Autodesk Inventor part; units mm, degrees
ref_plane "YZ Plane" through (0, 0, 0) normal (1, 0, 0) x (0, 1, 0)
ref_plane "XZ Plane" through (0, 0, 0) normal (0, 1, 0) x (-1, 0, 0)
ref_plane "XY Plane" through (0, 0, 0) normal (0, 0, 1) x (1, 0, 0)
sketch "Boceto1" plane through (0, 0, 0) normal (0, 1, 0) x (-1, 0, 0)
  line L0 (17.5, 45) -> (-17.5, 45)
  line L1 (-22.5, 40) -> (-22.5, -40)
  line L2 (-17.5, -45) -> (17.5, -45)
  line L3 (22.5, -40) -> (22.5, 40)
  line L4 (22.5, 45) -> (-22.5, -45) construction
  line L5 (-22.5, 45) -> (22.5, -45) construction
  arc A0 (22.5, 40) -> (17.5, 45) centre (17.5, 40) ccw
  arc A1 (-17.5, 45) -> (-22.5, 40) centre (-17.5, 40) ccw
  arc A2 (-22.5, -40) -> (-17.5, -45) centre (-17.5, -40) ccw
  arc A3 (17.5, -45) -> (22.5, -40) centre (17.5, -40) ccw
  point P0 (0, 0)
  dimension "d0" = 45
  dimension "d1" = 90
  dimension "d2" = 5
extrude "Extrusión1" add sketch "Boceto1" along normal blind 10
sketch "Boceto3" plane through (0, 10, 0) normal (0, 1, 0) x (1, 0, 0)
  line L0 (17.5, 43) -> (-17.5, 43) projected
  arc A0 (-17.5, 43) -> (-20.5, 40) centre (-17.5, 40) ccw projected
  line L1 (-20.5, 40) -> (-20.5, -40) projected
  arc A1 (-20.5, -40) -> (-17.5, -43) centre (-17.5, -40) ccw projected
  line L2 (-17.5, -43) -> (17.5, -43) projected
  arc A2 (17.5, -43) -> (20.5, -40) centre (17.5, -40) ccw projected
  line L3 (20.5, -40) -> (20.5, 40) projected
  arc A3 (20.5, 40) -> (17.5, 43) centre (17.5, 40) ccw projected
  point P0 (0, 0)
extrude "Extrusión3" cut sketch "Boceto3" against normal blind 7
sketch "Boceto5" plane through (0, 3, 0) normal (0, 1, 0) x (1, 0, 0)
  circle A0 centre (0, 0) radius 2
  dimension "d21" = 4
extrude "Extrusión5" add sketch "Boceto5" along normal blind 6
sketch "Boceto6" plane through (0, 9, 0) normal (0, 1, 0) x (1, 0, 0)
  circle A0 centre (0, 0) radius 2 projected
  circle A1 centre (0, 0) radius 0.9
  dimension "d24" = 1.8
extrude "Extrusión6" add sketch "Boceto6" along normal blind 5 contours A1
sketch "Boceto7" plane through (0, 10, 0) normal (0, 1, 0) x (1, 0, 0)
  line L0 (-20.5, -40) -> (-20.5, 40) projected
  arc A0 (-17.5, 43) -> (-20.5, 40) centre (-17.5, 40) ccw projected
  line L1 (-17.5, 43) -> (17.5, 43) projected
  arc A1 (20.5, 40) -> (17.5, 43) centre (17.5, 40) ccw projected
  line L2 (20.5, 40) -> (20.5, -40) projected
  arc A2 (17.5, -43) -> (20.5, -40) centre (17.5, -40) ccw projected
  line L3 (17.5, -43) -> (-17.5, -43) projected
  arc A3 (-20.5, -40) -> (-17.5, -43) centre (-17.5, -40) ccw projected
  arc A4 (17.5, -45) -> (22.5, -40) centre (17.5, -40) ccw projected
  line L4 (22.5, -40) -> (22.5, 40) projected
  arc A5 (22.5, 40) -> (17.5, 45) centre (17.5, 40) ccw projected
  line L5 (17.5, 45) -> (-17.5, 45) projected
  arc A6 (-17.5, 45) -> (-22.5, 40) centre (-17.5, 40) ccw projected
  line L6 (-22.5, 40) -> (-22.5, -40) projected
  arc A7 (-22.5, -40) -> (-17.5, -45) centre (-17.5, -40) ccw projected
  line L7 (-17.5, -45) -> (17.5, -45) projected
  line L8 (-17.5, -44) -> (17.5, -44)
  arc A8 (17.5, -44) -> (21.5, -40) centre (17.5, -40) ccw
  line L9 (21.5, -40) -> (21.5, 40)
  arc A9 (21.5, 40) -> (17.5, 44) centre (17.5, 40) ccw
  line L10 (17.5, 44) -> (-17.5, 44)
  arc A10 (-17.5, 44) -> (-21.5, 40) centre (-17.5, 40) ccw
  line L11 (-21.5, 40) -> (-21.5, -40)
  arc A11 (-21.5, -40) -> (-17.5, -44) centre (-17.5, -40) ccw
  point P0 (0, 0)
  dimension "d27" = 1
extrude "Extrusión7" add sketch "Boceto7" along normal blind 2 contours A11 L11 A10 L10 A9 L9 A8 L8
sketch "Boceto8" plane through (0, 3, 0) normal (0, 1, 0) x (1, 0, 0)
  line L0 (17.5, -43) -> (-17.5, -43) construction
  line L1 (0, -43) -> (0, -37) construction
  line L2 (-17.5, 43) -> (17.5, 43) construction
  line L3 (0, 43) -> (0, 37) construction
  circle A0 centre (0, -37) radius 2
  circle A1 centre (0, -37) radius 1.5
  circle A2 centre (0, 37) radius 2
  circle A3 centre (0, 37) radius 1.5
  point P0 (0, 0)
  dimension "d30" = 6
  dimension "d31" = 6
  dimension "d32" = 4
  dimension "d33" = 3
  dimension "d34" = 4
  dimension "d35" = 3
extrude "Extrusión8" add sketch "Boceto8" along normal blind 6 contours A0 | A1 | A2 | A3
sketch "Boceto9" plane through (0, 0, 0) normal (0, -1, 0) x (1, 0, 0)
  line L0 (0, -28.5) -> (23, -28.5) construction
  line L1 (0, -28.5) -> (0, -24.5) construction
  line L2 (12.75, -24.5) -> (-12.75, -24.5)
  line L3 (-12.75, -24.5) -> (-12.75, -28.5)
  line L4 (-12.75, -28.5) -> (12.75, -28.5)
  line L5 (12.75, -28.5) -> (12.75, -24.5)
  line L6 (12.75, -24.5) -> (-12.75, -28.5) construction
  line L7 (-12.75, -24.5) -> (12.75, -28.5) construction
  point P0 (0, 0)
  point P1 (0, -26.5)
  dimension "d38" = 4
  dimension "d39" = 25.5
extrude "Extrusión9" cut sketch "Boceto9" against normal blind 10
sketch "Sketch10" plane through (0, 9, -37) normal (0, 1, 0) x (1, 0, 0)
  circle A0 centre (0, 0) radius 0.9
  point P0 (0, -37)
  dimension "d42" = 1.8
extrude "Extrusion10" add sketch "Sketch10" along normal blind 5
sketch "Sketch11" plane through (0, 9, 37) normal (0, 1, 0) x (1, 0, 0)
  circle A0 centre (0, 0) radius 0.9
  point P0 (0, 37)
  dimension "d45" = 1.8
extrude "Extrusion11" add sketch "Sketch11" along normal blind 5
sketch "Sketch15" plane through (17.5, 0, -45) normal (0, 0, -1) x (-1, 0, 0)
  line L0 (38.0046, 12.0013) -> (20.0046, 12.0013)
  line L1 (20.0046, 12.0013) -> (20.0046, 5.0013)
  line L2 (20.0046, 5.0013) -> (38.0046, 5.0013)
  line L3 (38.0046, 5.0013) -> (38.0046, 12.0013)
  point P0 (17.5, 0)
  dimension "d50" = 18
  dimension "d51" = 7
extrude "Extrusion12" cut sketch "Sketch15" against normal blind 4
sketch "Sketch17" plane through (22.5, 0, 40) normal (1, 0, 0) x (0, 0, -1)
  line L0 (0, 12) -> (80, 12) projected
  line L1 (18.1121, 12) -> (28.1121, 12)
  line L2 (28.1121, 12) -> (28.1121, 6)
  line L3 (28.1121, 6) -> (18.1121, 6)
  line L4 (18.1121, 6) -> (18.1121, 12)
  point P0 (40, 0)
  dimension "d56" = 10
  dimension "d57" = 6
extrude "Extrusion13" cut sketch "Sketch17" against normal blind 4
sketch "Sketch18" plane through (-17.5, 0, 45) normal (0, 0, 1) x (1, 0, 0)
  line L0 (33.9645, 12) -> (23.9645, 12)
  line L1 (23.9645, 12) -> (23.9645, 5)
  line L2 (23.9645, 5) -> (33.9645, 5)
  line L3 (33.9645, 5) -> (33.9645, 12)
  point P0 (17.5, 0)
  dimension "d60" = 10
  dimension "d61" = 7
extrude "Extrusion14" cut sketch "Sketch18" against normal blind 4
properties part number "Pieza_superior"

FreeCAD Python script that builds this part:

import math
import FreeCAD as App
import Part
import Sketcher
Q = App.Units.Quantity


def add_polygon(sketch, points):
    """Adds a closed chain of lines whose ends are joined by coincident constraints."""
    first, n = sketch.GeometryCount, len(points)
    for a, b in zip(points, points[1:] + points[:1]):
        sketch.addGeometry(Part.LineSegment(App.Vector(*a, 0), App.Vector(*b, 0)), False)
    for i in range(n):
        sketch.addConstraint(Sketcher.Constraint("Coincident", first + i, 2, first + (i + 1) % n, 1))

doc = App.newDocument("Part")
body = doc.addObject("PartDesign::Body", "Body")

sketch1 = body.newObject("Sketcher::SketchObject", "Sketch")
sketch1.AttachmentSupport = (doc.getObject("XZ_Plane"), [""])
sketch1.MapMode = "FlatFace"
sketch1.addGeometry([
    Part.ArcOfCircle(Part.Circle(App.Vector(-18, 40, 0), App.Vector(0, 0, 1), 5), math.radians(90), math.radians(180)),
    Part.LineSegment(App.Vector(-18, 45, 0), App.Vector(18, 45, 0)),
    Part.ArcOfCircle(Part.Circle(App.Vector(18, 40, 0), App.Vector(0, 0, 1), 5), math.radians(0), math.radians(90)),
    Part.LineSegment(App.Vector(22, 40, 0), App.Vector(22, -40, 0)),
    Part.ArcOfCircle(Part.Circle(App.Vector(18, -40, 0), App.Vector(0, 0, 1), 5), math.radians(-90), math.radians(0)),
    Part.LineSegment(App.Vector(18, -45, 0), App.Vector(-18, -45, 0)),
    Part.ArcOfCircle(Part.Circle(App.Vector(-18, -40, 0), App.Vector(0, 0, 1), 5), math.radians(180), math.radians(270)),
    Part.LineSegment(App.Vector(-22, -40, 0), App.Vector(-22, 40, 0)),
], False)
sketch1.addConstraint([
    Sketcher.Constraint("Tangent", 0, 1, 1, 1),
    Sketcher.Constraint("Tangent", 1, 2, 2, 2),
    Sketcher.Constraint("Tangent", 2, 1, 3, 1),
    Sketcher.Constraint("Tangent", 3, 2, 4, 2),
    Sketcher.Constraint("Tangent", 4, 1, 5, 1),
    Sketcher.Constraint("Tangent", 5, 2, 6, 2),
    Sketcher.Constraint("Tangent", 6, 1, 7, 1),
    Sketcher.Constraint("Tangent", 7, 2, 0, 2),
    Sketcher.Constraint("Horizontal", 1),
    Sketcher.Constraint("Vertical", 3),
    Sketcher.Constraint("Horizontal", 5),
    Sketcher.Constraint("Vertical", 7),
    Sketcher.Constraint("Equal", 0, 2),
    Sketcher.Constraint("Equal", 2, 4),
    Sketcher.Constraint("Equal", 4, 6),
    Sketcher.Constraint("Symmetric", 0, 3, 4, 3, -1, 1),
    Sketcher.Constraint("Radius", 0, Q("5 mm")),
    Sketcher.Constraint("DistanceY", -1, 1, 0, 1, Q("45 mm")),
    Sketcher.Constraint("DistanceX", 6, 1, 3, 2, Q("45 mm")),
])
pad1 = body.newObject("PartDesign::Pad", "Pad")
pad1.Profile = sketch1
pad1.Length = 10
pad1.Reversed = True

sketch2 = body.newObject("Sketcher::SketchObject", "Sketch001")
sketch2.AttachmentSupport = (doc.getObject("XZ_Plane"), [""])
sketch2.MapMode = "FlatFace"
sketch2.AttachmentOffset = App.Placement(App.Vector(0, 0, -10), App.Rotation())
sketch2.addGeometry([
    Part.ArcOfCircle(Part.Circle(App.Vector(17.5, -40, 0), App.Vector(0, 0, 1), 3), math.radians(-90), math.radians(0)),
    Part.LineSegment(App.Vector(17.5, -43, 0), App.Vector(-17.5, -43, 0)),
    Part.ArcOfCircle(Part.Circle(App.Vector(-17.5, -40, 0), App.Vector(0, 0, 1), 3), math.radians(180), math.radians(270)),
    Part.LineSegment(App.Vector(-20.5, -40, 0), App.Vector(-20.5, 40, 0)),
    Part.ArcOfCircle(Part.Circle(App.Vector(-17.5, 40, 0), App.Vector(0, 0, 1), 3), math.radians(90), math.radians(180)),
    Part.LineSegment(App.Vector(-17.5, 43, 0), App.Vector(17.5, 43, 0)),
    Part.ArcOfCircle(Part.Circle(App.Vector(17.5, 40, 0), App.Vector(0, 0, 1), 3), math.radians(0), math.radians(90)),
    Part.LineSegment(App.Vector(20.5, 40, 0), App.Vector(20.5, -40, 0)),
], False)
sketch2.addConstraint([
    Sketcher.Constraint("Tangent", 0, 1, 1, 1),
    Sketcher.Constraint("Tangent", 1, 2, 2, 2),
    Sketcher.Constraint("Tangent", 2, 1, 3, 1),
    Sketcher.Constraint("Tangent", 3, 2, 4, 2),
    Sketcher.Constraint("Tangent", 4, 1, 5, 1),
    Sketcher.Constraint("Tangent", 5, 2, 6, 2),
    Sketcher.Constraint("Tangent", 6, 1, 7, 1),
    Sketcher.Constraint("Tangent", 7, 2, 0, 2),
    Sketcher.Constraint("Horizontal", 1),
    Sketcher.Constraint("Vertical", 3),
    Sketcher.Constraint("Horizontal", 5),
    Sketcher.Constraint("Vertical", 7),
    Sketcher.Constraint("Equal", 0, 2),
    Sketcher.Constraint("Equal", 2, 4),
    Sketcher.Constraint("Equal", 4, 6),
    Sketcher.Constraint("Symmetric", 0, 3, 4, 3, -1, 1),
    Sketcher.Constraint("Radius", 0, Q("3 mm")),
    Sketcher.Constraint("DistanceX", 1, 2, 1, 1, Q("35 mm")),
    Sketcher.Constraint("DistanceY", 3, 1, 3, 2, Q("80 mm")),
])
pocket1 = body.newObject("PartDesign::Pocket", "Pocket")
pocket1.Profile = sketch2
pocket1.Length = 7
pocket1.Reversed = True

sketch3 = body.newObject("Sketcher::SketchObject", "Sketch002")
sketch3.AttachmentSupport = (doc.getObject("XZ_Plane"), [""])
sketch3.MapMode = "FlatFace"
sketch3.AttachmentOffset = App.Placement(App.Vector(0, 0, -3), App.Rotation())
sketch3.addGeometry(Part.Circle(App.Vector(0, 0, 0), App.Vector(0, 0, 1), 2), False)
sketch3.addConstraint([
    Sketcher.Constraint("Coincident", 0, 3, -1, 1),
    Sketcher.Constraint("Diameter", 0, Q("4 mm")),
])
pad2 = body.newObject("PartDesign::Pad", "Pad001")
pad2.Profile = sketch3
pad2.Length = 6
pad2.Reversed = True

sketch4 = body.newObject("Sketcher::SketchObject", "Sketch003")
sketch4.AttachmentSupport = (doc.getObject("XZ_Plane"), [""])
sketch4.MapMode = "FlatFace"
sketch4.AttachmentOffset = App.Placement(App.Vector(0, 0, -9), App.Rotation())
sketch4.addGeometry(Part.Circle(App.Vector(0, 0, 0), App.Vector(0, 0, 1), 0.9), False)
sketch4.addConstraint([
    Sketcher.Constraint("Coincident", 0, 3, -1, 1),
    Sketcher.Constraint("Diameter", 0, Q("1.8 mm")),
])
pad3 = body.newObject("PartDesign::Pad", "Pad002")
pad3.Profile = sketch4
pad3.Length = 5
pad3.Reversed = True

sketch5 = body.newObject("Sketcher::SketchObject", "Sketch004")
sketch5.AttachmentSupport = (doc.getObject("XZ_Plane"), [""])
sketch5.MapMode = "FlatFace"
sketch5.AttachmentOffset = App.Placement(App.Vector(0, 0, -10), App.Rotation())
sketch5.addGeometry([
    Part.ArcOfCircle(Part.Circle(App.Vector(-17.5, 40, 0), App.Vector(0, 0, 1), 4), math.radians(90), math.radians(180)),
    Part.LineSegment(App.Vector(-17.5, 44, 0), App.Vector(17.5, 44, 0)),
    Part.ArcOfCircle(Part.Circle(App.Vector(17.5, 40, 0), App.Vector(0, 0, 1), 4), math.radians(0), math.radians(90)),
    Part.LineSegment(App.Vector(21.5, 40, 0), App.Vector(21.5, -40, 0)),
    Part.ArcOfCircle(Part.Circle(App.Vector(17.5, -40, 0), App.Vector(0, 0, 1), 4), math.radians(-90), math.radians(0)),
    Part.LineSegment(App.Vector(17.5, -44, 0), App.Vector(-17.5, -44, 0)),
    Part.ArcOfCircle(Part.Circle(App.Vector(-17.5, -40, 0), App.Vector(0, 0, 1), 4), math.radians(180), math.radians(270)),
    Part.LineSegment(App.Vector(-21.5, -40, 0), App.Vector(-21.5, 40, 0)),
    Part.ArcOfCircle(Part.Circle(App.Vector(-17.5, 40, 0), App.Vector(0, 0, 1), 3), math.radians(90), math.radians(180)),
    Part.LineSegment(App.Vector(-20.5, 40, 0), App.Vector(-20.5, -40, 0)),
    Part.ArcOfCircle(Part.Circle(App.Vector(-17.5, -40, 0), App.Vector(0, 0, 1), 3), math.radians(180), math.radians(270)),
    Part.LineSegment(App.Vector(-17.5, -43, 0), App.Vector(17.5, -43, 0)),
    Part.ArcOfCircle(Part.Circle(App.Vector(17.5, -40, 0), App.Vector(0, 0, 1), 3), math.radians(-90), math.radians(0)),
    Part.LineSegment(App.Vector(20.5, -40, 0), App.Vector(20.5, 40, 0)),
    Part.ArcOfCircle(Part.Circle(App.Vector(17.5, 40, 0), App.Vector(0, 0, 1), 3), math.radians(0), math.radians(90)),
    Part.LineSegment(App.Vector(17.5, 43, 0), App.Vector(-17.5, 43, 0)),
], False)
sketch5.addConstraint([
    Sketcher.Constraint("Tangent", 0, 1, 1, 1),
    Sketcher.Constraint("Tangent", 1, 2, 2, 2),
    Sketcher.Constraint("Tangent", 2, 1, 3, 1),
    Sketcher.Constraint("Tangent", 3, 2, 4, 2),
    Sketcher.Constraint("Tangent", 4, 1, 5, 1),
    Sketcher.Constraint("Tangent", 5, 2, 6, 2),
    Sketcher.Constraint("Tangent", 6, 1, 7, 1),
    Sketcher.Constraint("Tangent", 7, 2, 0, 2),
    Sketcher.Constraint("Tangent", 8, 2, 9, 1),
    Sketcher.Constraint("Tangent", 9, 2, 10, 1),
    Sketcher.Constraint("Tangent", 10, 2, 11, 1),
    Sketcher.Constraint("Tangent", 11, 2, 12, 1),
    Sketcher.Constraint("Tangent", 12, 2, 13, 1),
    Sketcher.Constraint("Tangent", 13, 2, 14, 1),
    Sketcher.Constraint("Tangent", 14, 2, 15, 1),
    Sketcher.Constraint("Tangent", 15, 2, 8, 1),
    Sketcher.Constraint("Horizontal", 1),
    Sketcher.Constraint("Vertical", 3),
    Sketcher.Constraint("Horizontal", 5),
    Sketcher.Constraint("Vertical", 7),
    Sketcher.Constraint("Vertical", 9),
    Sketcher.Constraint("Horizontal", 11),
    Sketcher.Constraint("Vertical", 13),
    Sketcher.Constraint("Horizontal", 15),
    Sketcher.Constraint("Coincident", 8, 3, 0, 3),
    Sketcher.Constraint("Coincident", 10, 3, 6, 3),
    Sketcher.Constraint("Coincident", 12, 3, 4, 3),
    Sketcher.Constraint("Equal", 0, 2),
    Sketcher.Constraint("Equal", 2, 4),
    Sketcher.Constraint("Equal", 4, 6),
    Sketcher.Constraint("Equal", 12, 14),
    Sketcher.Constraint("Symmetric", 0, 3, 4, 3, -1, 1),
    Sketcher.Constraint("Radius", 0, Q("4 mm")),
    Sketcher.Constraint("Radius", 8, Q("3 mm")),
    Sketcher.Constraint("DistanceX", 1, 1, 1, 2, Q("35 mm")),
    Sketcher.Constraint("DistanceY", 3, 2, 3, 1, Q("80 mm")),
])
pad4 = body.newObject("PartDesign::Pad", "Pad003")
pad4.Profile = sketch5
pad4.Length = 2
pad4.Reversed = True

sketch6 = body.newObject("Sketcher::SketchObject", "Sketch005")
sketch6.AttachmentSupport = (doc.getObject("XZ_Plane"), [""])
sketch6.MapMode = "FlatFace"
sketch6.AttachmentOffset = App.Placement(App.Vector(0, 0, -3), App.Rotation())
sketch6.addGeometry([
    Part.Circle(App.Vector(0, 37, 0), App.Vector(0, 0, 1), 2),
    Part.Circle(App.Vector(0, -37, 0), App.Vector(0, 0, 1), 2),
], False)
sketch6.addConstraint([
    Sketcher.Constraint("Equal", 0, 1),
    Sketcher.Constraint("Symmetric", 0, 3, 1, 3, -1, 1),
    Sketcher.Constraint("PointOnObject", 0, 3, -2),
    Sketcher.Constraint("Diameter", 0, Q("4 mm")),
    Sketcher.Constraint("DistanceY", -1, 1, 0, 3, Q("37 mm")),
])
pad5 = body.newObject("PartDesign::Pad", "Pad004")
pad5.Profile = sketch6
pad5.Length = 6
pad5.Reversed = True

sketch7 = body.newObject("Sketcher::SketchObject", "Sketch006")
sketch7.AttachmentSupport = (doc.getObject("XZ_Plane"), [""])
sketch7.MapMode = "FlatFace"
add_polygon(sketch7, [(12.8, -28.5), (12.8, -24.5), (-12.8, -24.5), (-12.8, -28.5)])
sketch7.addConstraint([
    Sketcher.Constraint("Vertical", 0),
    Sketcher.Constraint("Horizontal", 1),
    Sketcher.Constraint("Vertical", 2),
    Sketcher.Constraint("Horizontal", 3),
    Sketcher.Constraint("DistanceY", 0, 1, 0, 2, Q("4 mm")),
    Sketcher.Constraint("DistanceX", 1, 2, 1, 1, Q("25.5 mm")),
    Sketcher.Constraint("DistanceY", 0, 2, -1, 1, Q("24.5 mm")),
    Sketcher.Constraint("DistanceX", -1, 1, 0, 2, Q("12.75 mm")),
])
pocket2 = body.newObject("PartDesign::Pocket", "Pocket001")
pocket2.Profile = sketch7
pocket2.Length = 10

sketch8 = body.newObject("Sketcher::SketchObject", "Sketch007")
sketch8.AttachmentSupport = (doc.getObject("XZ_Plane"), [""])
sketch8.MapMode = "FlatFace"
sketch8.AttachmentOffset = App.Placement(App.Vector(0, 0, -9), App.Rotation())
sketch8.addGeometry(Part.Circle(App.Vector(0, -37, 0), App.Vector(0, 0, 1), 0.9), False)
sketch8.addConstraint([
    Sketcher.Constraint("PointOnObject", 0, 3, -2),
    Sketcher.Constraint("Diameter", 0, Q("1.8 mm")),
    Sketcher.Constraint("DistanceY", 0, 3, -1, 1, Q("37 mm")),
])
pad6 = body.newObject("PartDesign::Pad", "Pad005")
pad6.Profile = sketch8
pad6.Length = 5
pad6.Reversed = True

sketch9 = body.newObject("Sketcher::SketchObject", "Sketch008")
sketch9.AttachmentSupport = (doc.getObject("XZ_Plane"), [""])
sketch9.MapMode = "FlatFace"
sketch9.AttachmentOffset = App.Placement(App.Vector(0, 0, -9), App.Rotation())
sketch9.addGeometry(Part.Circle(App.Vector(0, 37, 0), App.Vector(0, 0, 1), 0.9), False)
sketch9.addConstraint([
    Sketcher.Constraint("PointOnObject", 0, 3, -2),
    Sketcher.Constraint("Diameter", 0, Q("1.8 mm")),
    Sketcher.Constraint("DistanceY", -1, 1, 0, 3, Q("37 mm")),
])
pad7 = body.newObject("PartDesign::Pad", "Pad006")
pad7.Profile = sketch9
pad7.Length = 5
pad7.Reversed = True

sketch10 = body.newObject("Sketcher::SketchObject", "Sketch009")
sketch10.AttachmentSupport = (doc.getObject("XY_Plane"), [""])
sketch10.MapMode = "FlatFace"
sketch10.AttachmentOffset = App.Placement(App.Vector(0, 0, -45), App.Rotation())
add_polygon(sketch10, [(-21, 5), (-21, 12), (-3, 12), (-3, 5)])
sketch10.addConstraint([
    Sketcher.Constraint("Vertical", 0),
    Sketcher.Constraint("Horizontal", 1),
    Sketcher.Constraint("Vertical", 2),
    Sketcher.Constraint("Horizontal", 3),
    Sketcher.Constraint("DistanceX", 1, 1, 1, 2, Q("18 mm")),
    Sketcher.Constraint("DistanceY", 0, 1, 0, 2, Q("7 mm")),
    Sketcher.Constraint("DistanceX", 0, 2, -1, 1, Q("20.5046 mm")),
    Sketcher.Constraint("DistanceY", -1, 1, 0, 2, Q("12.0013 mm")),
])
pocket3 = body.newObject("PartDesign::Pocket", "Pocket002")
pocket3.Profile = sketch10
pocket3.Length = 4
pocket3.Reversed = True

sketch11 = body.newObject("Sketcher::SketchObject", "Sketch010")
sketch11.AttachmentSupport = (doc.getObject("YZ_Plane"), [""])
sketch11.MapMode = "FlatFace"
sketch11.AttachmentOffset = App.Placement(App.Vector(0, 0, 22.5), App.Rotation())
add_polygon(sketch11, [(12, 12), (12, 22), (6, 22), (6, 12)])
sketch11.addConstraint([
    Sketcher.Constraint("Vertical", 0),
    Sketcher.Constraint("Horizontal", 1),
    Sketcher.Constraint("Vertical", 2),
    Sketcher.Constraint("Horizontal", 3),
    Sketcher.Constraint("DistanceX", 1, 2, 1, 1, Q("6 mm")),
    Sketcher.Constraint("DistanceY", 0, 1, 0, 2, Q("10 mm")),
    Sketcher.Constraint("DistanceX", -1, 1, 1, 2, Q("6 mm")),
    Sketcher.Constraint("DistanceY", -1, 1, 0, 2, Q("21.888 mm")),
])
pocket4 = body.newObject("PartDesign::Pocket", "Pocket003")
pocket4.Profile = sketch11
pocket4.Length = 4

sketch12 = body.newObject("Sketcher::SketchObject", "Sketch011")
sketch12.AttachmentSupport = (doc.getObject("XY_Plane"), [""])
sketch12.MapMode = "FlatFace"
sketch12.AttachmentOffset = App.Placement(App.Vector(0, 0, 45), App.Rotation())
add_polygon(sketch12, [(16, 5), (16, 12), (6, 12), (6, 5)])
sketch12.addConstraint([
    Sketcher.Constraint("Vertical", 0),
    Sketcher.Constraint("Horizontal", 1),
    Sketcher.Constraint("Vertical", 2),
    Sketcher.Constraint("Horizontal", 3),
    Sketcher.Constraint("DistanceX", 1, 2, 1, 1, Q("10 mm")),
    Sketcher.Constraint("DistanceY", 0, 1, 0, 2, Q("7 mm")),
    Sketcher.Constraint("DistanceY", -1, 1, 0, 2, Q("12 mm")),
    Sketcher.Constraint("DistanceX", -1, 1, 0, 2, Q("16.4645 mm")),
])
pocket5 = body.newObject("PartDesign::Pocket", "Pocket004")
pocket5.Profile = sketch12
pocket5.Length = 4

doc.recompute()
